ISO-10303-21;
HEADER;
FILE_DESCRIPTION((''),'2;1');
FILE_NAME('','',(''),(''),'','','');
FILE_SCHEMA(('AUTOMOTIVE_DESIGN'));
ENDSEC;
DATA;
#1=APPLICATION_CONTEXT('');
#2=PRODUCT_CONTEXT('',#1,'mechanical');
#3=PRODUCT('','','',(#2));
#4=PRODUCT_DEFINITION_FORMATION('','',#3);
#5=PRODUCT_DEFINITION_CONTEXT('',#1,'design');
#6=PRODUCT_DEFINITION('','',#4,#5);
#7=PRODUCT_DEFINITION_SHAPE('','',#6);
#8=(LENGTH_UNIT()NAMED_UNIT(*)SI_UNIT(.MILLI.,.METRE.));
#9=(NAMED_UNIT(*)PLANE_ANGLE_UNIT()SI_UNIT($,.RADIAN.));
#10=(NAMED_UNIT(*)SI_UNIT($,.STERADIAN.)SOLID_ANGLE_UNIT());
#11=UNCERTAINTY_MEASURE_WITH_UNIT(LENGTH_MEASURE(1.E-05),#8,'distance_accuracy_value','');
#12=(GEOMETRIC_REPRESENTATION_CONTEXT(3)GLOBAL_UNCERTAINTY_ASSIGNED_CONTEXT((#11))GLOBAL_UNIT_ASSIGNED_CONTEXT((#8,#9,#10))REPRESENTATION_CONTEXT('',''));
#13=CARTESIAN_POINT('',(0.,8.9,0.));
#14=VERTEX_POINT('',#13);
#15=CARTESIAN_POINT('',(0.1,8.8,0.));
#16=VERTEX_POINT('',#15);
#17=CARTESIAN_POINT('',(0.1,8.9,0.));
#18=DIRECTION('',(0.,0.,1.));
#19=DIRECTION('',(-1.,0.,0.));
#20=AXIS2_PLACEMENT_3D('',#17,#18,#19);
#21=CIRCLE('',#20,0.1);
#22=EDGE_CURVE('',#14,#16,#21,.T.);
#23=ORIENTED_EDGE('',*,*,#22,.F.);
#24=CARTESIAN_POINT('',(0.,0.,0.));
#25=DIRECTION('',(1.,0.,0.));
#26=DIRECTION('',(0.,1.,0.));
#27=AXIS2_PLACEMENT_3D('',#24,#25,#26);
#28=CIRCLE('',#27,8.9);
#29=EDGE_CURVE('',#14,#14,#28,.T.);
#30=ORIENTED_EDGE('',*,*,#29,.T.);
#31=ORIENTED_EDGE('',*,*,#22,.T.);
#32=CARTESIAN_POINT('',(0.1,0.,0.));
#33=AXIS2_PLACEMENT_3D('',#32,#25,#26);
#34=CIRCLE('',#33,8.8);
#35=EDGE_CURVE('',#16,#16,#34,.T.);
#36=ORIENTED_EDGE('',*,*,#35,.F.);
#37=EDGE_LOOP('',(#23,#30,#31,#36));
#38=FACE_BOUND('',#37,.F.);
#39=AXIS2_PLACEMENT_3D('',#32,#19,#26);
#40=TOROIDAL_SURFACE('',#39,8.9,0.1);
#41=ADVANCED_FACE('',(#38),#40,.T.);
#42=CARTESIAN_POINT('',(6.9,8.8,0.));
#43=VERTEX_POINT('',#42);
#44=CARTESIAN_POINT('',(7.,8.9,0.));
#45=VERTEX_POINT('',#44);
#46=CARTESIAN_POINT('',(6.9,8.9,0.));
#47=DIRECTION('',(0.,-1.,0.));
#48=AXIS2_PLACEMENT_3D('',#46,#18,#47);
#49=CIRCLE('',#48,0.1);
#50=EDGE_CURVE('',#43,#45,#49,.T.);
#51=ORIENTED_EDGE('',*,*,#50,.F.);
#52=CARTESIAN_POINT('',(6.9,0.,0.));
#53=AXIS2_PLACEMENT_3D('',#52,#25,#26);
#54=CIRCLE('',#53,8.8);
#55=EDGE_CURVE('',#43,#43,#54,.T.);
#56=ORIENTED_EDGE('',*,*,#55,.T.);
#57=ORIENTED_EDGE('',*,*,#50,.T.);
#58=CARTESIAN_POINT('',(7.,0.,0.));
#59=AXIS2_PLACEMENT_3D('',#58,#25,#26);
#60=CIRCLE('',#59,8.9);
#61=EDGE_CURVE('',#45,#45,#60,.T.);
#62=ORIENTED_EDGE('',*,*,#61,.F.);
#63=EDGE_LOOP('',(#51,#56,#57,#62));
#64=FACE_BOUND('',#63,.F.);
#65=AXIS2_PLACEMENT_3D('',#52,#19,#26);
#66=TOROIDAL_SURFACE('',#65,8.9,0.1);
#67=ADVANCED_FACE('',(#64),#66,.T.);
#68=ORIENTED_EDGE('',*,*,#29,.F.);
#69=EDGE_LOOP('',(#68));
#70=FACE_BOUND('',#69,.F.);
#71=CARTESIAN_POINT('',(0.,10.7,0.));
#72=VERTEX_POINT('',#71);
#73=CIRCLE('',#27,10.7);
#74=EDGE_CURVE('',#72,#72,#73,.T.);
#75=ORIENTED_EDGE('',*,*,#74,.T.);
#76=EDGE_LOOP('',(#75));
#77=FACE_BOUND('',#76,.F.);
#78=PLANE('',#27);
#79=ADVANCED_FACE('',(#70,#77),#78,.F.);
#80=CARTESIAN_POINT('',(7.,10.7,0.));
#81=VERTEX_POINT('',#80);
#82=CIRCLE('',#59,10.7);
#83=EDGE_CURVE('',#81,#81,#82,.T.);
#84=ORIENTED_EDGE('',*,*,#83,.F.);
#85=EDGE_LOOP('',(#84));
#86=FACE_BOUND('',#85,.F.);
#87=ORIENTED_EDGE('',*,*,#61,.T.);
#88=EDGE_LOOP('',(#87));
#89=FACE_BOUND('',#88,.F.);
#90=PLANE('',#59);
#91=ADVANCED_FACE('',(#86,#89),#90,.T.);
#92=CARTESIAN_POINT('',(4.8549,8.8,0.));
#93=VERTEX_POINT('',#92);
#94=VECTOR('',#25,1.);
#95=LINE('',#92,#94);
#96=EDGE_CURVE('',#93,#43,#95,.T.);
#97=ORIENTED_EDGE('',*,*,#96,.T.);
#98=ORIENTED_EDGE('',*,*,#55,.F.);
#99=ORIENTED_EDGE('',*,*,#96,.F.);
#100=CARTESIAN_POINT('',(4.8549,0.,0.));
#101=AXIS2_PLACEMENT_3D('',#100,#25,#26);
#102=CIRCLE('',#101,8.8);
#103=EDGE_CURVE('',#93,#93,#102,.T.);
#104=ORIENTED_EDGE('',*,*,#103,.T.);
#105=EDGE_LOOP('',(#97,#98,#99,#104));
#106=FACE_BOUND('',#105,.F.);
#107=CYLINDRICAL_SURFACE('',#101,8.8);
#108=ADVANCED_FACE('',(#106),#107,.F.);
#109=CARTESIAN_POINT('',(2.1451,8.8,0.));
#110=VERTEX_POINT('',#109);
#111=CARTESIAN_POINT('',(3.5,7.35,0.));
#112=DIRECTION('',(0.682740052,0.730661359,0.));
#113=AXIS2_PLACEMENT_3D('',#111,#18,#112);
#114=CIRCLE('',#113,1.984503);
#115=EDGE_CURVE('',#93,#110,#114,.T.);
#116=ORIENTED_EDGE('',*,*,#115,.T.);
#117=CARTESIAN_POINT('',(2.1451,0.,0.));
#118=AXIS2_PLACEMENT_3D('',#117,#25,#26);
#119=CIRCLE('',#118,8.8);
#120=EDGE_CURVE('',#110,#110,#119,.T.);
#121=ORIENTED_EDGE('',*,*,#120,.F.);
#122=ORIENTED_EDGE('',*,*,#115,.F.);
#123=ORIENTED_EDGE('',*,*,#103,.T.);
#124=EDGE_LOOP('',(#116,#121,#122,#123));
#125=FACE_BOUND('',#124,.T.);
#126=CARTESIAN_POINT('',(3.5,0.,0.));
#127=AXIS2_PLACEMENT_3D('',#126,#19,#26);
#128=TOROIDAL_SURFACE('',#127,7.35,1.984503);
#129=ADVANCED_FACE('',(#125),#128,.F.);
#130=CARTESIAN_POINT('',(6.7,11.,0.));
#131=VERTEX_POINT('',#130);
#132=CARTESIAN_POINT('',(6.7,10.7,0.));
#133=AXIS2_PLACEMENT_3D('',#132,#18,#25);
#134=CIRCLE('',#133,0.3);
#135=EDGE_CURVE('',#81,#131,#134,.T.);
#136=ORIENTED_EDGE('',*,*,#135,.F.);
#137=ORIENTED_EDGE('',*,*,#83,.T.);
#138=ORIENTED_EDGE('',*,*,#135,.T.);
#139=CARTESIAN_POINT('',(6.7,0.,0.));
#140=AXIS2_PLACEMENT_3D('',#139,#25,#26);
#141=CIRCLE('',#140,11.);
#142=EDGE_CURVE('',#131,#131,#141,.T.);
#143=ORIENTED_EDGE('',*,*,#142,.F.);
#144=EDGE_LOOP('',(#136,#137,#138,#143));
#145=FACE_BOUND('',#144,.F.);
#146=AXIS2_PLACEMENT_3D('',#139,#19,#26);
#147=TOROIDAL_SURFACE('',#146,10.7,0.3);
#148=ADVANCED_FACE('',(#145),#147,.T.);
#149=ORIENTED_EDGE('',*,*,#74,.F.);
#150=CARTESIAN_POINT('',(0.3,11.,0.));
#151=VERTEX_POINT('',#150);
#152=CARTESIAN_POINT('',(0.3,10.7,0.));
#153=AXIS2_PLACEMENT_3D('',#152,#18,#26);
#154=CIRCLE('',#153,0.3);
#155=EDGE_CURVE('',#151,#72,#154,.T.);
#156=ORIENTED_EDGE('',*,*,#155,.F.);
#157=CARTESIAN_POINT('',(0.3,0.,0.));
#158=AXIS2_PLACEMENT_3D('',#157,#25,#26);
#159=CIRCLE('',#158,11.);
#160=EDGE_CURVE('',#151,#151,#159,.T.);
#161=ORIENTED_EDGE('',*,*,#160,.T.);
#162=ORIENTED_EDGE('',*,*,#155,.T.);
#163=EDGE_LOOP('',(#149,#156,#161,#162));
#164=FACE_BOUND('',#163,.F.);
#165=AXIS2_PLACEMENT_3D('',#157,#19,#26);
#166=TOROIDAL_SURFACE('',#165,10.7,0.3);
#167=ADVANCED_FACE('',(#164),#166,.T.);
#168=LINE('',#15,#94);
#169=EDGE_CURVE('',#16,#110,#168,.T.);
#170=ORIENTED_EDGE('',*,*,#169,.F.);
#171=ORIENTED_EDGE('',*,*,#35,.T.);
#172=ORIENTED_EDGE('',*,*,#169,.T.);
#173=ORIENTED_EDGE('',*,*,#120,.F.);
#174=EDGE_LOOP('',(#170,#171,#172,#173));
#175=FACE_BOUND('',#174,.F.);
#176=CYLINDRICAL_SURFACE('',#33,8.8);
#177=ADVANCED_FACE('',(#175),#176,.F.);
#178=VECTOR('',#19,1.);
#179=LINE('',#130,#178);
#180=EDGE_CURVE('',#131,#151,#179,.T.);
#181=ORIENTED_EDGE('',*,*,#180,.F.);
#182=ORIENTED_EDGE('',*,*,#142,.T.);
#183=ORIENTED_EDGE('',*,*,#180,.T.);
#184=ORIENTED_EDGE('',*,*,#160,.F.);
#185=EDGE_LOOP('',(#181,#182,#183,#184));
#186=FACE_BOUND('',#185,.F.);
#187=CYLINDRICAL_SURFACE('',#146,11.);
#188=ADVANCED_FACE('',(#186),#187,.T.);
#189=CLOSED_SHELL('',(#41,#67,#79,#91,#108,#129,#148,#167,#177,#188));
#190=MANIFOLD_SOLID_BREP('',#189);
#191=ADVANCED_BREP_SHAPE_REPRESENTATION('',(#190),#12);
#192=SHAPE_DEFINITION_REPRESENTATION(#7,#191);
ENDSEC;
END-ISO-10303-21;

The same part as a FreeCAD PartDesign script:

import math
import FreeCAD as App
import Part
import Sketcher
from FreeCAD import Vector
Q = App.Units.Quantity

doc = App.newDocument("Part")
body = doc.addObject("PartDesign::Body", "Body")

# Sketch on XY plane
sketch1 = doc.addObject("Sketcher::SketchObject", "Sketch")
body.addObject(sketch1)
sketch1.AttachmentSupport = (doc.XY_Plane, [""])
sketch1.MapMode = "FlatFace"
sketch1.addGeometry(Part.ArcOfCircle(Part.Circle(Vector(0.3, 10.7, 0), Vector(0, 0, 1), 0.3), math.radians(90), math.radians(180)), False)
sketch1.addGeometry(Part.LineSegment(Vector(0, 10.7, 0), Vector(0, 8.9, 0)), False)
sketch1.addGeometry(Part.ArcOfCircle(Part.Circle(Vector(0.1, 8.9, 0), Vector(0, 0, 1), 0.1), math.radians(180), math.radians(270)), False)
sketch1.addGeometry(Part.LineSegment(Vector(0.1, 8.8, 0), Vector(2.15, 8.8, 0)), False)
sketch1.addGeometry(Part.ArcOfCircle(Part.Circle(Vector(3.5, 7.35, 0), Vector(0, 0, 1), 1.98), math.radians(47), math.radians(133)), False)
sketch1.addGeometry(Part.LineSegment(Vector(4.85, 8.8, 0), Vector(6.9, 8.8, 0)), False)
sketch1.addGeometry(Part.ArcOfCircle(Part.Circle(Vector(6.9, 8.9, 0), Vector(0, 0, 1), 0.1), math.radians(-90), math.radians(0)), False)
sketch1.addGeometry(Part.LineSegment(Vector(7, 8.9, 0), Vector(7, 10.7, 0)), False)
sketch1.addGeometry(Part.ArcOfCircle(Part.Circle(Vector(6.7, 10.7, 0), Vector(0, 0, 1), 0.3), math.radians(0), math.radians(90)), False)
sketch1.addGeometry(Part.LineSegment(Vector(6.7, 11, 0), Vector(0.3, 11, 0)), False)
sketch1.addConstraint(Sketcher.Constraint("Tangent", 0, 2, 1, 1))
sketch1.addConstraint(Sketcher.Constraint("Tangent", 1, 2, 2, 1))
sketch1.addConstraint(Sketcher.Constraint("Tangent", 2, 2, 3, 1))
sketch1.addConstraint(Sketcher.Constraint("Coincident", 3, 2, 4, 2))
sketch1.addConstraint(Sketcher.Constraint("Coincident", 4, 1, 5, 1))
sketch1.addConstraint(Sketcher.Constraint("Tangent", 5, 2, 6, 1))
sketch1.addConstraint(Sketcher.Constraint("Tangent", 6, 2, 7, 1))
sketch1.addConstraint(Sketcher.Constraint("Tangent", 7, 2, 8, 1))
sketch1.addConstraint(Sketcher.Constraint("Tangent", 8, 2, 9, 1))
sketch1.addConstraint(Sketcher.Constraint("Tangent", 9, 2, 0, 1))
sketch1.addConstraint(Sketcher.Constraint("Vertical", 1))
sketch1.addConstraint(Sketcher.Constraint("Horizontal", 3))
sketch1.addConstraint(Sketcher.Constraint("Horizontal", 5))
sketch1.addConstraint(Sketcher.Constraint("Vertical", 7))
sketch1.addConstraint(Sketcher.Constraint("Horizontal", 9))
sketch1.addConstraint(Sketcher.Constraint("Equal", 2, 6))
sketch1.addConstraint(Sketcher.Constraint("Equal", 0, 8))
sketch1.addConstraint(Sketcher.Constraint("PointOnObject", 0, 2, -2))
sketch1.addConstraint(Sketcher.Constraint("Horizontal", 2, 3, 6, 3))
sketch1.addConstraint(Sketcher.Constraint("Equal", 3, 5))
sketch1.addConstraint(Sketcher.Constraint("Radius", 0, Q("0.3 mm")))
sketch1.addConstraint(Sketcher.Constraint("Radius", 2, Q("0.1 mm")))
sketch1.addConstraint(Sketcher.Constraint("DistanceX", 9, 2, 9, 1, Q("6.4 mm")))
sketch1.addConstraint(Sketcher.Constraint("DistanceY", 1, 2, 1, 1, Q("1.8 mm")))
sketch1.addConstraint(Sketcher.Constraint("DistanceY", -1, 1, 8, 2, Q("11 mm")))
sketch1.addConstraint(Sketcher.Constraint("Radius", 4, Q("1.9845 mm")))
sketch1.addConstraint(Sketcher.Constraint("DistanceX", 3, 1, 3, 2, Q("2.045 mm")))
revolution = doc.addObject("PartDesign::Revolution", "Revolution")
body.addObject(revolution)
revolution.Profile = sketch1
revolution.ReferenceAxis = (sketch1, ["H_Axis"])
revolution.Angle = 360

doc.recompute()
